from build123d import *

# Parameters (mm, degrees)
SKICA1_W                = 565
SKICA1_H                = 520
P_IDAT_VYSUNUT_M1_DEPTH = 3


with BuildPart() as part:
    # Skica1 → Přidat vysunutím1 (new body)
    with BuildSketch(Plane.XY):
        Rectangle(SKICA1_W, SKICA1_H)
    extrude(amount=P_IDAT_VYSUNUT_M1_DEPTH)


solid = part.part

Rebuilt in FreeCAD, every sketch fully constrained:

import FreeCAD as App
import Part
import Sketcher

V = App.Vector
Q = App.Units.Quantity


def add_polygon(sketch, points):
    """Adds a closed chain of lines whose ends are joined by coincident constraints."""
    first, n = sketch.GeometryCount, len(points)
    for a, b in zip(points, points[1:] + points[:1]):
        sketch.addGeometry(Part.LineSegment(App.Vector(*a, 0), App.Vector(*b, 0)), False)
    for i in range(n):
        sketch.addConstraint(Sketcher.Constraint("Coincident", first + i, 2, first + (i + 1) % n, 1))

doc = App.newDocument("Part")
body = doc.addObject("PartDesign::Body", "Body")

# Sketch on XY plane
sketch1 = doc.addObject("Sketcher::SketchObject", "Sketch")
body.addObject(sketch1)
sketch1.AttachmentSupport = (doc.XY_Plane, [""])
sketch1.MapMode = "FlatFace"
add_polygon(sketch1, [(-282.5, 260), (-282.5, -260), (282.5, -260), (282.5, 260)])  # lines 0-3
sketch1.addConstraint([
    Sketcher.Constraint("Vertical", 0),
    Sketcher.Constraint("Horizontal", 1),
    Sketcher.Constraint("Vertical", 2),
    Sketcher.Constraint("Horizontal", 3),
    Sketcher.Constraint("Symmetric", 0, 2, 2, 2, -1, 1),
    Sketcher.Constraint("DistanceX", 1, 1, 1, 2, Q("565 mm")),
    Sketcher.Constraint("DistanceY", 0, 2, 0, 1, Q("520 mm")),
])
pad1 = doc.addObject("PartDesign::Pad", "Pad")
body.addObject(pad1)
pad1.Profile = sketch1
pad1.Length = 3

doc.recompute()
